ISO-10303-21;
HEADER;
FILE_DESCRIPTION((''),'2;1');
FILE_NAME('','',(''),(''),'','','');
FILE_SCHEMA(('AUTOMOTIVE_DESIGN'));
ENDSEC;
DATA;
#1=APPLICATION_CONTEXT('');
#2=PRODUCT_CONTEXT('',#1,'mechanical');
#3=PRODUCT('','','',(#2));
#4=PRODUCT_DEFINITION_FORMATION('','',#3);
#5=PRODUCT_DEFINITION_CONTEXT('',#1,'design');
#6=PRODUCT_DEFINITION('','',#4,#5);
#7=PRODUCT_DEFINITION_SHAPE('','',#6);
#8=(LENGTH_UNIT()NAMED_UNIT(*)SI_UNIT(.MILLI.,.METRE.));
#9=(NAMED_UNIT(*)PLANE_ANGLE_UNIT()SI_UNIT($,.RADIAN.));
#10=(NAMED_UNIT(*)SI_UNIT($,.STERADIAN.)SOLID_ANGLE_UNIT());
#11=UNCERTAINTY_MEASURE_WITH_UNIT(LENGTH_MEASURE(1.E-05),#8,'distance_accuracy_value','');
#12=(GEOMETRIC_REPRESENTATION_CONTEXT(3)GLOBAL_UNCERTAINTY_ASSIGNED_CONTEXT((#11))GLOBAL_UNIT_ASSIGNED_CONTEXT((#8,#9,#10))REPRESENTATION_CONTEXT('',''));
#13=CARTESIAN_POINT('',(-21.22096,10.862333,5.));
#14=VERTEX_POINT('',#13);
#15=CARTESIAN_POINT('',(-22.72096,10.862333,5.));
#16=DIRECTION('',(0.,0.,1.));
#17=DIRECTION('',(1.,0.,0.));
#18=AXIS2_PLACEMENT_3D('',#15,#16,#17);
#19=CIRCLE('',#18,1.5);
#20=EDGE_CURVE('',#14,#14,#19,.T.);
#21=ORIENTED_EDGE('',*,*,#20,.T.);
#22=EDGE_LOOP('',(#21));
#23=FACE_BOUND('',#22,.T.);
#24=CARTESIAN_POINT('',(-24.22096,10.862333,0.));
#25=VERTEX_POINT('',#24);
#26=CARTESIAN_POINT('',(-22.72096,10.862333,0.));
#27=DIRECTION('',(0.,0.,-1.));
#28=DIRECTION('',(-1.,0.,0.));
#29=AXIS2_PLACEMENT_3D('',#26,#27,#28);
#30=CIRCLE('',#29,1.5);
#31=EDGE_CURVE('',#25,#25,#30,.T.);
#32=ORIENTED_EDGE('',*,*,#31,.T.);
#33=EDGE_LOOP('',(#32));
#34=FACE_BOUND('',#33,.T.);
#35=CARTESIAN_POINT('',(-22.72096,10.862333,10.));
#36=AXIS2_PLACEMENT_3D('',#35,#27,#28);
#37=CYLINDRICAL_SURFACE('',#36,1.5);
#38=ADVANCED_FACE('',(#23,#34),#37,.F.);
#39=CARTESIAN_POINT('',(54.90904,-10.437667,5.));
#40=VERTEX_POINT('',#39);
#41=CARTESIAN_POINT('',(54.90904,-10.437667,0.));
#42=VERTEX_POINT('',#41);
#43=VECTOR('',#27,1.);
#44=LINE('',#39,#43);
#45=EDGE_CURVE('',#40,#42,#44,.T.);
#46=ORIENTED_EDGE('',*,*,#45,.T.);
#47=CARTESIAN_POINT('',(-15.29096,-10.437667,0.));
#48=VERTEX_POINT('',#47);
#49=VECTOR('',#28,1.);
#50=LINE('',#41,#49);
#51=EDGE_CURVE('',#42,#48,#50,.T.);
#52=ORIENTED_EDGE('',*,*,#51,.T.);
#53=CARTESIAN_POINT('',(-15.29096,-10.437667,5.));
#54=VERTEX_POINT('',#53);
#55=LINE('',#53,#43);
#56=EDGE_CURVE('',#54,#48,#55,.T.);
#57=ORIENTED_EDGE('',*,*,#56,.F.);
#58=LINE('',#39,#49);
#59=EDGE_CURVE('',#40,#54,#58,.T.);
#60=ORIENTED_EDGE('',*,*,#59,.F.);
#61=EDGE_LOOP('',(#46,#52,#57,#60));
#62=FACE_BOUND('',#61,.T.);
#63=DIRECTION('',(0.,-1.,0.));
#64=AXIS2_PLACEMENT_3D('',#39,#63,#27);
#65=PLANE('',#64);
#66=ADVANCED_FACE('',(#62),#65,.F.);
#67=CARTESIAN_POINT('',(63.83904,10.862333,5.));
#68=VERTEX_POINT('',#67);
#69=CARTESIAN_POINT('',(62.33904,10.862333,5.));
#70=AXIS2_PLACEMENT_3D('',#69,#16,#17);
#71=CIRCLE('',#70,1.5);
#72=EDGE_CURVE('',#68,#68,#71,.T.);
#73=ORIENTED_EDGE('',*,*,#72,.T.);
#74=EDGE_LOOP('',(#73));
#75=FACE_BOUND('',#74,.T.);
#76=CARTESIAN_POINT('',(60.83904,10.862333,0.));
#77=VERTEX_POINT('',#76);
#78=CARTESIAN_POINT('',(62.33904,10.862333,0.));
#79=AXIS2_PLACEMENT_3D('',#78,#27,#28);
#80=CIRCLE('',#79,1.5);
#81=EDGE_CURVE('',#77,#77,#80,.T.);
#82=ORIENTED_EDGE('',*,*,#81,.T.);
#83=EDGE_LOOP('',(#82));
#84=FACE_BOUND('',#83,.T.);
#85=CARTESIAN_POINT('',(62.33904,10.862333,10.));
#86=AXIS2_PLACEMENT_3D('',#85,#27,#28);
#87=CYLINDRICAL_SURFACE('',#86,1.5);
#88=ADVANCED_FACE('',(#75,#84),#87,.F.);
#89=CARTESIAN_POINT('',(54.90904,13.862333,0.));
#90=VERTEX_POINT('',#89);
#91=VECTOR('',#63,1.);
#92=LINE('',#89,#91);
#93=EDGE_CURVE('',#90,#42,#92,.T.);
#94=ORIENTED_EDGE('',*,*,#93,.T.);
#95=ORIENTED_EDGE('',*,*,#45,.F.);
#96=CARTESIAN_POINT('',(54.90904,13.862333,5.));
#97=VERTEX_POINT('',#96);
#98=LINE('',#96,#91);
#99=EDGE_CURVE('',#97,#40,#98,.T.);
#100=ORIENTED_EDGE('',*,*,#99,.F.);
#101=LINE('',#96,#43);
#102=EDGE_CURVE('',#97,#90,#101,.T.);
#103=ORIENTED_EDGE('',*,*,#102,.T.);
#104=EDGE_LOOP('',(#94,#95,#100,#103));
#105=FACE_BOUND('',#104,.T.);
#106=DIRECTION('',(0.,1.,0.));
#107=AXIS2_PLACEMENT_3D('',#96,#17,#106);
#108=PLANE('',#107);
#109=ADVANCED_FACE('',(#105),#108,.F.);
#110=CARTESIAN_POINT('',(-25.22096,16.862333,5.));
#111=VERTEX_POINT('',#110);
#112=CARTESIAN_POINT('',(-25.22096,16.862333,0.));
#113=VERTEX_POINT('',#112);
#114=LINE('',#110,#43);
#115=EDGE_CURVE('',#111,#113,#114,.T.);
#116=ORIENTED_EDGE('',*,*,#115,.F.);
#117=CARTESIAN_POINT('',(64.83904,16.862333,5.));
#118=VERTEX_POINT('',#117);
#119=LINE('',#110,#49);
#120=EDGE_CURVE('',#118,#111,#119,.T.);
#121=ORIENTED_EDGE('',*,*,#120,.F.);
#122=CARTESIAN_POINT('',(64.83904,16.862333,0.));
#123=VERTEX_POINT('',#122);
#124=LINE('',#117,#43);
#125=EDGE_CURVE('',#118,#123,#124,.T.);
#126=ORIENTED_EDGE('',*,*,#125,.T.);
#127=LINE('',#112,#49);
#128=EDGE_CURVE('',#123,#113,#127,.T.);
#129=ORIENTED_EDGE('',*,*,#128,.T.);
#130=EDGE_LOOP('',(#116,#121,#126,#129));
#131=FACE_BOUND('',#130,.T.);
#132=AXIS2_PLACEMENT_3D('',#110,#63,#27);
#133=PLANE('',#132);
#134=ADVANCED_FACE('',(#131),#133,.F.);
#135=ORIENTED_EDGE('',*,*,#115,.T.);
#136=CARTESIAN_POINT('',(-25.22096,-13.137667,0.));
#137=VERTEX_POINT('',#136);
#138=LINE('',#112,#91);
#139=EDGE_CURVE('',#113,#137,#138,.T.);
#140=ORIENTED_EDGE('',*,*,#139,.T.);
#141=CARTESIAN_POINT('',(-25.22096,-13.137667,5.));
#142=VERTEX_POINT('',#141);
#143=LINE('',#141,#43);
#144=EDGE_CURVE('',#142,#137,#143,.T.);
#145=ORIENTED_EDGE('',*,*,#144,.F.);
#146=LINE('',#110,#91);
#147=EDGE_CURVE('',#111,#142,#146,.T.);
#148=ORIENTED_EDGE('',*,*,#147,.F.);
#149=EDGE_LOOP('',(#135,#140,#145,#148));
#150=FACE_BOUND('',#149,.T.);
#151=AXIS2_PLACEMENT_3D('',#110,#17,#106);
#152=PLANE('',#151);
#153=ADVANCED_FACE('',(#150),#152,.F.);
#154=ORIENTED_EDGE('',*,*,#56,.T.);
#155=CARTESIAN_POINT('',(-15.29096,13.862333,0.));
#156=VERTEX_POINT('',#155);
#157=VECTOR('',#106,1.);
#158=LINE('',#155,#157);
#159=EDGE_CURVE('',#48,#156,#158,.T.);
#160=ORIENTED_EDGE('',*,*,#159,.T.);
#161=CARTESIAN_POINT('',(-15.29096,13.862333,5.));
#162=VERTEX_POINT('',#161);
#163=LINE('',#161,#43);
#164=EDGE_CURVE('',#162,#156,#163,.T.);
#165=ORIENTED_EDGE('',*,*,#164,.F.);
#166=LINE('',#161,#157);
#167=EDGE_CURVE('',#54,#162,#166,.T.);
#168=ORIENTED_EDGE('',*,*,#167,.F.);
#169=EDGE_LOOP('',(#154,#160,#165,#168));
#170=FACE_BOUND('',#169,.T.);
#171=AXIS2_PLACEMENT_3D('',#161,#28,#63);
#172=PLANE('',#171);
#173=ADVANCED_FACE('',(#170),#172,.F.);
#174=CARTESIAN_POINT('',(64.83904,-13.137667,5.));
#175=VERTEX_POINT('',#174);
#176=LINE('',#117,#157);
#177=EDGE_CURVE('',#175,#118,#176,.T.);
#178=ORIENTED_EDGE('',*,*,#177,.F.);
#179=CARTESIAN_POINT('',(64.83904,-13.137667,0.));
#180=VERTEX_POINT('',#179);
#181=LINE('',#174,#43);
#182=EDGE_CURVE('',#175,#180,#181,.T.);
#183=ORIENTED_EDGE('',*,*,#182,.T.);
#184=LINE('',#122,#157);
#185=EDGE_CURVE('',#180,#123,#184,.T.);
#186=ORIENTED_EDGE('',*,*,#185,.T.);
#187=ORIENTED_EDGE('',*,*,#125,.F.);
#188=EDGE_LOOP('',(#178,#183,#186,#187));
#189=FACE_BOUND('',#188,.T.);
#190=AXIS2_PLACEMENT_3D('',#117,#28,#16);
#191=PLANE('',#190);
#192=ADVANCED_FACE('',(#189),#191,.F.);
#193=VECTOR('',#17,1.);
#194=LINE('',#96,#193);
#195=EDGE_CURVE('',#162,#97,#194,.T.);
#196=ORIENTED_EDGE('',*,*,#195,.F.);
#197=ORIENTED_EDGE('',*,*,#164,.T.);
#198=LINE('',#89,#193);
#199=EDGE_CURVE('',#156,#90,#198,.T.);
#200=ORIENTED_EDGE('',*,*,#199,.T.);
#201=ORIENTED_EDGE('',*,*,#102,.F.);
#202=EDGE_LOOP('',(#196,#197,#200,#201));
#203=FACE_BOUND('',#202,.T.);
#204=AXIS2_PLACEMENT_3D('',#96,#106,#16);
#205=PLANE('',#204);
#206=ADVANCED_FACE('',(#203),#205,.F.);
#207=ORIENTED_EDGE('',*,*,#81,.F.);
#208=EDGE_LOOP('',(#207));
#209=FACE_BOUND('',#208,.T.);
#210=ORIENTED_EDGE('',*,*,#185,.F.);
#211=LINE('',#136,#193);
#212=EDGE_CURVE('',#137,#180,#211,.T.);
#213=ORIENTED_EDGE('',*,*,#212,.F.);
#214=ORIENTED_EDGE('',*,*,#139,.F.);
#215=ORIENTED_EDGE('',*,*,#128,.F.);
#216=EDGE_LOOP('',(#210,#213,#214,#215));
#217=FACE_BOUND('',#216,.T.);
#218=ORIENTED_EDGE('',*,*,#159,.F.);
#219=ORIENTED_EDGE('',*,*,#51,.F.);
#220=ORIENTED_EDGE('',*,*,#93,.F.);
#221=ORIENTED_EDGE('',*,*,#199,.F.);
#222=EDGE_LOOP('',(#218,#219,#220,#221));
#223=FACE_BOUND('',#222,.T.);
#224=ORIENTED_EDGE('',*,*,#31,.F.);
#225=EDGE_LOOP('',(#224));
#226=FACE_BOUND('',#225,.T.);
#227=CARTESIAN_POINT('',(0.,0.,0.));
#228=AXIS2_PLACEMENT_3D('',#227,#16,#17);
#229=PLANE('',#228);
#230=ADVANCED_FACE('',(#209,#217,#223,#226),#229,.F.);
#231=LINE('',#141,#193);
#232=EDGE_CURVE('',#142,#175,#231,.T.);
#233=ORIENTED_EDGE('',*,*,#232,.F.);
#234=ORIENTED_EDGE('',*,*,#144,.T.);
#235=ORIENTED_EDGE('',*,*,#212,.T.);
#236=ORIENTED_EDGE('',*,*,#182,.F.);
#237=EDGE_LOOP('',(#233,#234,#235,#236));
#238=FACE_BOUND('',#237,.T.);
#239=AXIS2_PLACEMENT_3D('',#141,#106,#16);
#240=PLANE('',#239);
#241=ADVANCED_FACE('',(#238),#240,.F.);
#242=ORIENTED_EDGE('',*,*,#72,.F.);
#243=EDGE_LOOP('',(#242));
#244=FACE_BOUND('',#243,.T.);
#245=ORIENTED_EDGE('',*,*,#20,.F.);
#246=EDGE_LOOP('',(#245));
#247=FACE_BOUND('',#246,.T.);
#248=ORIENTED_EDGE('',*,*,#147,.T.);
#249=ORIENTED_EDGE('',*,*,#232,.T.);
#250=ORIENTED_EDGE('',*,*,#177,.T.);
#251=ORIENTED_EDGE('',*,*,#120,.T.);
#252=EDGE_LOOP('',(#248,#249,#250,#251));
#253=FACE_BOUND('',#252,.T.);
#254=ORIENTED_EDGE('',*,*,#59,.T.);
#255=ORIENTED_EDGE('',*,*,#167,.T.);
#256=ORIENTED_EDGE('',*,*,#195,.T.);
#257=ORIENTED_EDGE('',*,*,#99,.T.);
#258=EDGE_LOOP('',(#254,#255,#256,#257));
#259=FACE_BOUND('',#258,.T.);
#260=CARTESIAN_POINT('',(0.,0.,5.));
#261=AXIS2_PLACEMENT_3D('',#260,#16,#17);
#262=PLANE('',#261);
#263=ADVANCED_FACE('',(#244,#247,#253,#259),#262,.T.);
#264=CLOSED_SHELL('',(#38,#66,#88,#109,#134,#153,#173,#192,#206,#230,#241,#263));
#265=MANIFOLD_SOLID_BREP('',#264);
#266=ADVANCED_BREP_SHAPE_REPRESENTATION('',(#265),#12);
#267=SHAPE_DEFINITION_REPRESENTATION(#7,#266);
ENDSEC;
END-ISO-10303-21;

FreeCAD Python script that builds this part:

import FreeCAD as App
import Part
import Sketcher
from FreeCAD import Vector

doc = App.newDocument("Part")
body = doc.addObject("PartDesign::Body", "Body")

sketch1 = doc.addObject("Sketcher::SketchObject", "Sketch")
body.addObject(sketch1)
sketch1.AttachmentSupport = (doc.XY_Plane, [""])
sketch1.MapMode = "FlatFace"
sketch1.addGeometry(Part.LineSegment(Vector(-25, 17, 0), Vector(-25, -13, 0)), False)
sketch1.addGeometry(Part.LineSegment(Vector(-25, -13, 0), Vector(65, -13, 0)), False)
sketch1.addGeometry(Part.LineSegment(Vector(65, -13, 0), Vector(65, 17, 0)), False)
sketch1.addGeometry(Part.LineSegment(Vector(65, 17, 0), Vector(-25, 17, 0)), False)
sketch1.addConstraint(Sketcher.Constraint("Coincident", 0, 2, 1, 1))
sketch1.addConstraint(Sketcher.Constraint("Coincident", 1, 2, 2, 1))
sketch1.addConstraint(Sketcher.Constraint("Coincident", 2, 2, 3, 1))
sketch1.addConstraint(Sketcher.Constraint("Coincident", 3, 2, 0, 1))
sketch1.addConstraint(Sketcher.Constraint("Vertical", 0))
sketch1.addConstraint(Sketcher.Constraint("Horizontal", 1))
sketch1.addConstraint(Sketcher.Constraint("Vertical", 2))
sketch1.addConstraint(Sketcher.Constraint("Horizontal", 3))
sketch1.addConstraint(Sketcher.Constraint("DistanceY", 0, 2, 0, 1, 30.0))
sketch1.addConstraint(Sketcher.Constraint("DistanceX", 1, 1, 1, 2, 90.06))
sketch1.addConstraint(Sketcher.Constraint("DistanceX", 0, 2, -1, 1, 25.22096))
sketch1.addConstraint(Sketcher.Constraint("DistanceY", 0, 2, -1, 1, 13.137667))
pad1 = doc.addObject("PartDesign::Pad", "Pad")
body.addObject(pad1)
pad1.Profile = sketch1
pad1.Length = 5

sketch2 = doc.addObject("Sketcher::SketchObject", "Sketch001")
body.addObject(sketch2)
sketch2.AttachmentSupport = (doc.XY_Plane, [""])
sketch2.MapMode = "FlatFace"
sketch2.addGeometry(Part.LineSegment(Vector(55, 14, 0), Vector(55, -10, 0)), False)
sketch2.addGeometry(Part.LineSegment(Vector(55, -10, 0), Vector(-15, -10, 0)), False)
sketch2.addGeometry(Part.LineSegment(Vector(-15, -10, 0), Vector(-15, 14, 0)), False)
sketch2.addGeometry(Part.LineSegment(Vector(-15, 14, 0), Vector(55, 14, 0)), False)
sketch2.addConstraint(Sketcher.Constraint("Coincident", 0, 2, 1, 1))
sketch2.addConstraint(Sketcher.Constraint("Coincident", 1, 2, 2, 1))
sketch2.addConstraint(Sketcher.Constraint("Coincident", 2, 2, 3, 1))
sketch2.addConstraint(Sketcher.Constraint("Coincident", 3, 2, 0, 1))
sketch2.addConstraint(Sketcher.Constraint("Vertical", 0))
sketch2.addConstraint(Sketcher.Constraint("Horizontal", 1))
sketch2.addConstraint(Sketcher.Constraint("Vertical", 2))
sketch2.addConstraint(Sketcher.Constraint("Horizontal", 3))
sketch2.addConstraint(Sketcher.Constraint("DistanceX", 1, 2, 1, 1, 70.2))
sketch2.addConstraint(Sketcher.Constraint("DistanceY", 0, 2, 0, 1, 24.3))
sketch2.addConstraint(Sketcher.Constraint("DistanceX", -1, 1, 0, 2, 54.90904))
sketch2.addConstraint(Sketcher.Constraint("DistanceY", 0, 2, -1, 1, 10.437667))
pocket1 = doc.addObject("PartDesign::Pocket", "Pocket")
body.addObject(pocket1)
pocket1.Profile = sketch2
pocket1.Type = "ThroughAll"
pocket1.Reversed = True

sketch3 = doc.addObject("Sketcher::SketchObject", "Sketch002")
body.addObject(sketch3)
sketch3.AttachmentSupport = (doc.XY_Plane, [""])
sketch3.MapMode = "FlatFace"
sketch3.addGeometry(Part.Circle(Vector(-22.7, 10.9, 0), Vector(0, 0, 1), 1.5), False)
sketch3.addGeometry(Part.Circle(Vector(62.3, 10.9, 0), Vector(0, 0, 1), 1.5), False)
sketch3.addConstraint(Sketcher.Constraint("Equal", 0, 1))
sketch3.addConstraint(Sketcher.Constraint("Horizontal", 0, 3, 1, 3))
sketch3.addConstraint(Sketcher.Constraint("Diameter", 0, 3.0))
sketch3.addConstraint(Sketcher.Constraint("DistanceX", 0, 3, 1, 3, 85.06))
sketch3.addConstraint(Sketcher.Constraint("DistanceX", 0, 3, -1, 1, 22.72096))
sketch3.addConstraint(Sketcher.Constraint("DistanceY", -1, 1, 0, 3, 10.862333))
pocket2 = doc.addObject("PartDesign::Pocket", "Pocket001")
body.addObject(pocket2)
pocket2.Profile = sketch3
pocket2.Length = 10
pocket2.Reversed = True

doc.recompute()
